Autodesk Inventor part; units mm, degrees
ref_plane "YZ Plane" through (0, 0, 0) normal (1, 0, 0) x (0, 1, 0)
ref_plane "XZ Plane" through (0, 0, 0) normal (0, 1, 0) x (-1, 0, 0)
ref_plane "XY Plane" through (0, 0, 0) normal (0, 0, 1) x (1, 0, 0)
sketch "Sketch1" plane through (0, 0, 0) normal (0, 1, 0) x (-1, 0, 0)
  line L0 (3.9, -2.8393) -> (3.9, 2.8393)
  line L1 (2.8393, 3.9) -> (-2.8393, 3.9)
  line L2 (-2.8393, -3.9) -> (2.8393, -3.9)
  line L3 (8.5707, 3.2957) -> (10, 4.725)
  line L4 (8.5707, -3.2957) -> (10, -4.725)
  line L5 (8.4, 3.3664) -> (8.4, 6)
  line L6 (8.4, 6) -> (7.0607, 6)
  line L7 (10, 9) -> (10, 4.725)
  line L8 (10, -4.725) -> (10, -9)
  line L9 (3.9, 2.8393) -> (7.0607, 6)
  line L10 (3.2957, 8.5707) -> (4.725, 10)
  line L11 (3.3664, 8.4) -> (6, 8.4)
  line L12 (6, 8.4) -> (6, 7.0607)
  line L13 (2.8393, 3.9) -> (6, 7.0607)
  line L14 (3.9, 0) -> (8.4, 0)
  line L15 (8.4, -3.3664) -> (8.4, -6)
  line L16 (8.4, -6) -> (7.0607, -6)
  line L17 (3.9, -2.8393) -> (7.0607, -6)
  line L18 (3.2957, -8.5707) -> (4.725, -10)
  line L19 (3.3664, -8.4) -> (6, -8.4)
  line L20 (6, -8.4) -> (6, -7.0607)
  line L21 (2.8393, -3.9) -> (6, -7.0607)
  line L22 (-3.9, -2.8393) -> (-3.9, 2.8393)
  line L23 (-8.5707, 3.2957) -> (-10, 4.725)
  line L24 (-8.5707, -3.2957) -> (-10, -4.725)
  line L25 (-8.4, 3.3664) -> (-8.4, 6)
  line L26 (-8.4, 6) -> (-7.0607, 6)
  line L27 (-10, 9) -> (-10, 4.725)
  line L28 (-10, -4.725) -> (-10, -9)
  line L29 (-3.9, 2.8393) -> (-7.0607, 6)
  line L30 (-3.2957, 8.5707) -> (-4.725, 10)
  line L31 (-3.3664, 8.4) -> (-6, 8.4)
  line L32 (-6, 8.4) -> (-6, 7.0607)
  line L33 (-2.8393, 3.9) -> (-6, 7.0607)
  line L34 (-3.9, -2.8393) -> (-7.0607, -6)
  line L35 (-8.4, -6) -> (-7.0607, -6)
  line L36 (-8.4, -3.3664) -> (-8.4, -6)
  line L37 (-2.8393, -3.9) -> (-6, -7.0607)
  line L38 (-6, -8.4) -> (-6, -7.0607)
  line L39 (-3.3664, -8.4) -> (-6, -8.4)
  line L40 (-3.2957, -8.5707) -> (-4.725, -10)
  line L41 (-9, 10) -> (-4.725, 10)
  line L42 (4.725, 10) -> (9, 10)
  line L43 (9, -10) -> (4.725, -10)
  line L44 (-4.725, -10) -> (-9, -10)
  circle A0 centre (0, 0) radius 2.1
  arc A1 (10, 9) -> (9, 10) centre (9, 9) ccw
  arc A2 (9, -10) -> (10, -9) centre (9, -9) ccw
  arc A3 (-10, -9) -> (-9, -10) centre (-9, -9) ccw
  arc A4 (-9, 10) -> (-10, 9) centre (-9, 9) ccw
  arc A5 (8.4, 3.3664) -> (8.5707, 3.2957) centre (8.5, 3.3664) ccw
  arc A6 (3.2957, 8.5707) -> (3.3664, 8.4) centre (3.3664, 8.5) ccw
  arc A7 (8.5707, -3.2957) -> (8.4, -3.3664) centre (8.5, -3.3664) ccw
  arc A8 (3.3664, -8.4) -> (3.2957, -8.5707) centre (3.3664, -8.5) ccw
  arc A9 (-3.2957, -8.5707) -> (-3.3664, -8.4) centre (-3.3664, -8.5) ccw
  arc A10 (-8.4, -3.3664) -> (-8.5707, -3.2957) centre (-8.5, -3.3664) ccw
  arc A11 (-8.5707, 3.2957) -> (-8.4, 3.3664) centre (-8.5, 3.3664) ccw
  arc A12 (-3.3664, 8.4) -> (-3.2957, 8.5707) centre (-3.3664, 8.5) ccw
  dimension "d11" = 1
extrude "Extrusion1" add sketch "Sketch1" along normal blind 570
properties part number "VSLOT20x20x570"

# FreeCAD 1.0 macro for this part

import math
import FreeCAD as App
import Part
import Sketcher
from FreeCAD import Vector

doc = App.newDocument("Part")
body = doc.addObject("PartDesign::Body", "Body")

# Sketch on XZ plane
sketch1 = body.newObject("Sketcher::SketchObject", "Sketch")
sketch1.AttachmentSupport = (doc.getObject("XZ_Plane"), [""])
sketch1.MapMode = "FlatFace"
sketch1.addGeometry([
    Part.LineSegment(Vector(-7.0607, -6, 0), Vector(-3.9, -2.8393, 0)),  # 0
    Part.LineSegment(Vector(-3.9, -2.8393, 0), Vector(-3.9, 2.8393, 0)),  # 1
    Part.LineSegment(Vector(-3.9, 2.8393, 0), Vector(-7.0607, 6, 0)),  # 2
    Part.LineSegment(Vector(-7.0607, 6, 0), Vector(-8.4, 6, 0)),  # 3
    Part.LineSegment(Vector(-8.4, 6, 0), Vector(-8.4, 3.3664, 0)),  # 4
    Part.ArcOfCircle(Part.Circle(Vector(-8.5, 3.3664, 0), Vector(0, 0, 1), 0.1), math.radians(-135), math.radians(0)),  # 5
    Part.LineSegment(Vector(-8.5707, 3.2957, 0), Vector(-10, 4.725, 0)),  # 6
    Part.LineSegment(Vector(-10, 4.725, 0), Vector(-10, 9, 0)),  # 7
    Part.ArcOfCircle(Part.Circle(Vector(-9, 9, 0), Vector(0, 0, 1), 1), math.radians(90), math.radians(180)),  # 8
    Part.LineSegment(Vector(-9, 10, 0), Vector(-4.725, 10, 0)),  # 9
    Part.LineSegment(Vector(-4.725, 10, 0), Vector(-3.2957, 8.5707, 0)),  # 10
    Part.ArcOfCircle(Part.Circle(Vector(-3.3664, 8.5, 0), Vector(0, 0, 1), 0.099985), math.radians(-90), math.radians(45)),  # 11
    Part.LineSegment(Vector(-3.3664, 8.4, 0), Vector(-6, 8.4, 0)),  # 12
    Part.LineSegment(Vector(-6, 8.4, 0), Vector(-6, 7.0607, 0)),  # 13
    Part.LineSegment(Vector(-6, 7.0607, 0), Vector(-2.8393, 3.9, 0)),  # 14
    Part.LineSegment(Vector(-2.8393, 3.9, 0), Vector(2.8393, 3.9, 0)),  # 15
    Part.LineSegment(Vector(2.8393, 3.9, 0), Vector(6, 7.0607, 0)),  # 16
    Part.LineSegment(Vector(6, 7.0607, 0), Vector(6, 8.4, 0)),  # 17
    Part.LineSegment(Vector(6, 8.4, 0), Vector(3.3664, 8.4, 0)),  # 18
    Part.ArcOfCircle(Part.Circle(Vector(3.3664, 8.5, 0), Vector(0, 0, 1), 0.1), math.radians(135), math.radians(270)),  # 19
    Part.LineSegment(Vector(3.2957, 8.5707, 0), Vector(4.725, 10, 0)),  # 20
    Part.LineSegment(Vector(4.725, 10, 0), Vector(9, 10, 0)),  # 21
    Part.ArcOfCircle(Part.Circle(Vector(9, 9, 0), Vector(0, 0, 1), 1), math.radians(0), math.radians(90)),  # 22
    Part.LineSegment(Vector(10, 9, 0), Vector(10, 4.725, 0)),  # 23
    Part.LineSegment(Vector(10, 4.725, 0), Vector(8.5707, 3.2957, 0)),  # 24
    Part.ArcOfCircle(Part.Circle(Vector(8.5, 3.3664, 0), Vector(0, 0, 1), 0.099985), math.radians(180), math.radians(315)),  # 25
    Part.LineSegment(Vector(8.4, 3.3664, 0), Vector(8.4, 6, 0)),  # 26
    Part.LineSegment(Vector(8.4, 6, 0), Vector(7.0607, 6, 0)),  # 27
    Part.LineSegment(Vector(7.0607, 6, 0), Vector(3.9, 2.8393, 0)),  # 28
    Part.LineSegment(Vector(3.9, 2.8393, 0), Vector(3.9, -2.8393, 0)),  # 29
    Part.LineSegment(Vector(3.9, -2.8393, 0), Vector(7.0607, -6, 0)),  # 30
    Part.LineSegment(Vector(7.0607, -6, 0), Vector(8.4, -6, 0)),  # 31
    Part.LineSegment(Vector(8.4, -6, 0), Vector(8.4, -3.3664, 0)),  # 32
    Part.ArcOfCircle(Part.Circle(Vector(8.5, -3.3664, 0), Vector(0, 0, 1), 0.1), math.radians(45), math.radians(180)),  # 33
    Part.LineSegment(Vector(8.5707, -3.2957, 0), Vector(10, -4.725, 0)),  # 34
    Part.LineSegment(Vector(10, -4.725, 0), Vector(10, -9, 0)),  # 35
    Part.ArcOfCircle(Part.Circle(Vector(9, -9, 0), Vector(0, 0, 1), 1), math.radians(-90), math.radians(0)),  # 36
    Part.LineSegment(Vector(9, -10, 0), Vector(4.725, -10, 0)),  # 37
    Part.LineSegment(Vector(4.725, -10, 0), Vector(3.2957, -8.5707, 0)),  # 38
    Part.ArcOfCircle(Part.Circle(Vector(3.3664, -8.5, 0), Vector(0, 0, 1), 0.099985), math.radians(90), math.radians(225)),  # 39
    Part.LineSegment(Vector(3.3664, -8.4, 0), Vector(6, -8.4, 0)),  # 40
    Part.LineSegment(Vector(6, -8.4, 0), Vector(6, -7.0607, 0)),  # 41
    Part.LineSegment(Vector(6, -7.0607, 0), Vector(2.8393, -3.9, 0)),  # 42
    Part.LineSegment(Vector(2.8393, -3.9, 0), Vector(-2.8393, -3.9, 0)),  # 43
    Part.LineSegment(Vector(-2.8393, -3.9, 0), Vector(-6, -7.0607, 0)),  # 44
    Part.LineSegment(Vector(-6, -7.0607, 0), Vector(-6, -8.4, 0)),  # 45
    Part.LineSegment(Vector(-6, -8.4, 0), Vector(-3.3664, -8.4, 0)),  # 46
    Part.ArcOfCircle(Part.Circle(Vector(-3.3664, -8.5, 0), Vector(0, 0, 1), 0.1), math.radians(-45), math.radians(90)),  # 47
    Part.LineSegment(Vector(-3.2957, -8.5707, 0), Vector(-4.725, -10, 0)),  # 48
    Part.LineSegment(Vector(-4.725, -10, 0), Vector(-9, -10, 0)),  # 49
    Part.ArcOfCircle(Part.Circle(Vector(-9, -9, 0), Vector(0, 0, 1), 1), math.radians(180), math.radians(270)),  # 50
    Part.LineSegment(Vector(-10, -9, 0), Vector(-10, -4.725, 0)),  # 51
    Part.LineSegment(Vector(-10, -4.725, 0), Vector(-8.5707, -3.2957, 0)),  # 52
    Part.ArcOfCircle(Part.Circle(Vector(-8.5, -3.3664, 0), Vector(0, 0, 1), 0.099985), math.radians(0), math.radians(135)),  # 53
    Part.LineSegment(Vector(-8.4, -3.3664, 0), Vector(-8.4, -6, 0)),  # 54
    Part.LineSegment(Vector(-8.4, -6, 0), Vector(-7.0607, -6, 0)),  # 55
    Part.Circle(Vector(0, 0, 0), Vector(0, 0, 1), 2.1),  # 56
], False)
sketch1.addConstraint([
    Sketcher.Constraint("Coincident", 0, 2, 1, 1),
    Sketcher.Constraint("Coincident", 1, 2, 2, 1),
    Sketcher.Constraint("Coincident", 2, 2, 3, 1),
    Sketcher.Constraint("Coincident", 3, 2, 4, 1),
    Sketcher.Constraint("Tangent", 4, 2, 5, 2),
    Sketcher.Constraint("Tangent", 5, 1, 6, 1),
    Sketcher.Constraint("Coincident", 6, 2, 7, 1),
    Sketcher.Constraint("Tangent", 7, 2, 8, 2),
    Sketcher.Constraint("Tangent", 8, 1, 9, 1),
    Sketcher.Constraint("Coincident", 9, 2, 10, 1),
    Sketcher.Constraint("Tangent", 10, 2, 11, 2),
    Sketcher.Constraint("Tangent", 11, 1, 12, 1),
    Sketcher.Constraint("Coincident", 12, 2, 13, 1),
    Sketcher.Constraint("Coincident", 13, 2, 14, 1),
    Sketcher.Constraint("Coincident", 14, 2, 15, 1),
    Sketcher.Constraint("Coincident", 15, 2, 16, 1),
    Sketcher.Constraint("Coincident", 16, 2, 17, 1),
    Sketcher.Constraint("Coincident", 17, 2, 18, 1),
    Sketcher.Constraint("Tangent", 18, 2, 19, 2),
    Sketcher.Constraint("Tangent", 19, 1, 20, 1),
    Sketcher.Constraint("Coincident", 20, 2, 21, 1),
    Sketcher.Constraint("Tangent", 21, 2, 22, 2),
    Sketcher.Constraint("Tangent", 22, 1, 23, 1),
    Sketcher.Constraint("Coincident", 23, 2, 24, 1),
    Sketcher.Constraint("Tangent", 24, 2, 25, 2),
    Sketcher.Constraint("Tangent", 25, 1, 26, 1),
    Sketcher.Constraint("Coincident", 26, 2, 27, 1),
    Sketcher.Constraint("Coincident", 27, 2, 28, 1),
    Sketcher.Constraint("Coincident", 28, 2, 29, 1),
    Sketcher.Constraint("Coincident", 29, 2, 30, 1),
    Sketcher.Constraint("Coincident", 30, 2, 31, 1),
    Sketcher.Constraint("Coincident", 31, 2, 32, 1),
    Sketcher.Constraint("Tangent", 32, 2, 33, 2),
    Sketcher.Constraint("Tangent", 33, 1, 34, 1),
    Sketcher.Constraint("Coincident", 34, 2, 35, 1),
    Sketcher.Constraint("Tangent", 35, 2, 36, 2),
    Sketcher.Constraint("Tangent", 36, 1, 37, 1),
    Sketcher.Constraint("Coincident", 37, 2, 38, 1),
    Sketcher.Constraint("Tangent", 38, 2, 39, 2),
    Sketcher.Constraint("Tangent", 39, 1, 40, 1),
    Sketcher.Constraint("Coincident", 40, 2, 41, 1),
    Sketcher.Constraint("Coincident", 41, 2, 42, 1),
    Sketcher.Constraint("Coincident", 42, 2, 43, 1),
    Sketcher.Constraint("Coincident", 43, 2, 44, 1),
    Sketcher.Constraint("Coincident", 44, 2, 45, 1),
    Sketcher.Constraint("Coincident", 45, 2, 46, 1),
    Sketcher.Constraint("Tangent", 46, 2, 47, 2),
    Sketcher.Constraint("Tangent", 47, 1, 48, 1),
    Sketcher.Constraint("Coincident", 48, 2, 49, 1),
    Sketcher.Constraint("Tangent", 49, 2, 50, 2),
    Sketcher.Constraint("Tangent", 50, 1, 51, 1),
    Sketcher.Constraint("Coincident", 51, 2, 52, 1),
    Sketcher.Constraint("Tangent", 52, 2, 53, 2),
    Sketcher.Constraint("Tangent", 53, 1, 54, 1),
    Sketcher.Constraint("Coincident", 54, 2, 55, 1),
    Sketcher.Constraint("Coincident", 55, 2, 0, 1),
    Sketcher.Constraint("Vertical", 1),
    Sketcher.Constraint("Horizontal", 3),
    Sketcher.Constraint("Vertical", 4),
    Sketcher.Constraint("Vertical", 7),
    Sketcher.Constraint("Horizontal", 9),
    Sketcher.Constraint("Horizontal", 12),
    Sketcher.Constraint("Vertical", 13),
    Sketcher.Constraint("Horizontal", 15),
    Sketcher.Constraint("Vertical", 17),
    Sketcher.Constraint("Horizontal", 18),
    Sketcher.Constraint("Horizontal", 21),
    Sketcher.Constraint("Vertical", 23),
    Sketcher.Constraint("Vertical", 26),
    Sketcher.Constraint("Horizontal", 27),
    Sketcher.Constraint("Vertical", 29),
    Sketcher.Constraint("Horizontal", 31),
    Sketcher.Constraint("Vertical", 32),
    Sketcher.Constraint("Vertical", 35),
    Sketcher.Constraint("Horizontal", 37),
    Sketcher.Constraint("Horizontal", 40),
    Sketcher.Constraint("Vertical", 41),
    Sketcher.Constraint("Horizontal", 43),
    Sketcher.Constraint("Vertical", 45),
    Sketcher.Constraint("Horizontal", 46),
    Sketcher.Constraint("Horizontal", 49),
    Sketcher.Constraint("Vertical", 51),
    Sketcher.Constraint("Vertical", 54),
    Sketcher.Constraint("Horizontal", 55),
    Sketcher.Constraint("Coincident", 56, 3, -1, 1),
    Sketcher.Constraint("Equal", 5, 11),
    Sketcher.Constraint("Equal", 11, 19),
    Sketcher.Constraint("Equal", 8, 22),
    Sketcher.Constraint("Equal", 19, 25),
    Sketcher.Constraint("Equal", 25, 33),
    Sketcher.Constraint("Equal", 22, 36),
    Sketcher.Constraint("Equal", 33, 39),
    Sketcher.Constraint("Equal", 39, 47),
    Sketcher.Constraint("Equal", 36, 50),
    Sketcher.Constraint("Equal", 47, 53),
    Sketcher.Constraint("Symmetric", 5, 3, 33, 3, -1, 1),
    Sketcher.Constraint("Symmetric", 8, 3, 36, 3, -1, 1),
    Sketcher.Constraint("Symmetric", 11, 3, 39, 3, -1, 1),
    Sketcher.Constraint("Symmetric", 19, 3, 47, 3, -1, 1),
    Sketcher.Constraint("Symmetric", 22, 3, 50, 3, -1, 1),
    Sketcher.Constraint("Symmetric", 25, 3, 53, 3, -1, 1),
    Sketcher.Constraint("Symmetric", 0, 2, 28, 2, -1, 1),
    Sketcher.Constraint("Symmetric", 2, 2, 30, 2, -1, 1),
    Sketcher.Constraint("Symmetric", 13, 2, 41, 2, -1, 1),
    Sketcher.Constraint("Symmetric", 14, 2, 42, 2, -1, 1),
    Sketcher.Constraint("Symmetric", 16, 2, 44, 2, -1, 1),
    Sketcher.Constraint("Symmetric", 27, 2, 55, 2, -1, 1),
    Sketcher.Constraint("Symmetric", 11, 3, 19, 3, -2),
    Sketcher.Constraint("Symmetric", 8, 3, 22, 3, -2),
    Sketcher.Constraint("Symmetric", 5, 3, 25, 3, -2),
    Sketcher.Constraint("Symmetric", 13, 2, 16, 2, -2),
    Sketcher.Constraint("Symmetric", 2, 2, 27, 2, -2),
    Sketcher.Constraint("Perpendicular", 0, 2),
    Sketcher.Constraint("Parallel", 2, 6),
    Sketcher.Constraint("Parallel", 6, 10),
    Sketcher.Constraint("Parallel", 10, 14),
    Sketcher.Constraint("Perpendicular", 14, 16),
    Sketcher.Constraint("Parallel", 16, 20),
    Sketcher.Constraint("Parallel", 20, 24),
    Sketcher.Constraint("Perpendicular", 28, 30),
    Sketcher.Constraint("Parallel", 30, 34),
    Sketcher.Constraint("Parallel", 34, 38),
    Sketcher.Constraint("Perpendicular", 42, 44),
    Sketcher.Constraint("Parallel", 44, 48),
    Sketcher.Constraint("Parallel", 48, 52),
    Sketcher.Constraint("Horizontal", 10, 2, 19, 1),
    Sketcher.Constraint("Equal", 43, 1),
    Sketcher.Constraint("Equal", 46, 4),
    Sketcher.Constraint("Equal", 49, 7),
    Sketcher.Constraint("Equal", 55, 13),
    Sketcher.Constraint("Equal", 6, 10),
    Sketcher.Constraint("Equal", 2, 14),
    Sketcher.Constraint("Radius", 8, 1.0),
    Sketcher.Constraint("Diameter", 56, 4.2),
    Sketcher.Constraint("Radius", 5, 0.1),
    Sketcher.Constraint("DistanceX", 8, 3, -1, 1, 9.0),
    Sketcher.Constraint("DistanceY", -1, 1, 2, 2, 6.0),
    Sketcher.Constraint("DistanceX", 5, 3, -1, 1, 8.5),
    Sketcher.Constraint("DistanceX", 0, 2, -1, 1, 3.9),
    Sketcher.Constraint("Distance", 0, 4.47),
    Sketcher.Constraint("DistanceX", 9, 1, 9, 2, 4.275),
])
pad1 = body.newObject("PartDesign::Pad", "Pad")
pad1.Profile = sketch1
pad1.Length = 570
pad1.Reversed = True

doc.recompute()
